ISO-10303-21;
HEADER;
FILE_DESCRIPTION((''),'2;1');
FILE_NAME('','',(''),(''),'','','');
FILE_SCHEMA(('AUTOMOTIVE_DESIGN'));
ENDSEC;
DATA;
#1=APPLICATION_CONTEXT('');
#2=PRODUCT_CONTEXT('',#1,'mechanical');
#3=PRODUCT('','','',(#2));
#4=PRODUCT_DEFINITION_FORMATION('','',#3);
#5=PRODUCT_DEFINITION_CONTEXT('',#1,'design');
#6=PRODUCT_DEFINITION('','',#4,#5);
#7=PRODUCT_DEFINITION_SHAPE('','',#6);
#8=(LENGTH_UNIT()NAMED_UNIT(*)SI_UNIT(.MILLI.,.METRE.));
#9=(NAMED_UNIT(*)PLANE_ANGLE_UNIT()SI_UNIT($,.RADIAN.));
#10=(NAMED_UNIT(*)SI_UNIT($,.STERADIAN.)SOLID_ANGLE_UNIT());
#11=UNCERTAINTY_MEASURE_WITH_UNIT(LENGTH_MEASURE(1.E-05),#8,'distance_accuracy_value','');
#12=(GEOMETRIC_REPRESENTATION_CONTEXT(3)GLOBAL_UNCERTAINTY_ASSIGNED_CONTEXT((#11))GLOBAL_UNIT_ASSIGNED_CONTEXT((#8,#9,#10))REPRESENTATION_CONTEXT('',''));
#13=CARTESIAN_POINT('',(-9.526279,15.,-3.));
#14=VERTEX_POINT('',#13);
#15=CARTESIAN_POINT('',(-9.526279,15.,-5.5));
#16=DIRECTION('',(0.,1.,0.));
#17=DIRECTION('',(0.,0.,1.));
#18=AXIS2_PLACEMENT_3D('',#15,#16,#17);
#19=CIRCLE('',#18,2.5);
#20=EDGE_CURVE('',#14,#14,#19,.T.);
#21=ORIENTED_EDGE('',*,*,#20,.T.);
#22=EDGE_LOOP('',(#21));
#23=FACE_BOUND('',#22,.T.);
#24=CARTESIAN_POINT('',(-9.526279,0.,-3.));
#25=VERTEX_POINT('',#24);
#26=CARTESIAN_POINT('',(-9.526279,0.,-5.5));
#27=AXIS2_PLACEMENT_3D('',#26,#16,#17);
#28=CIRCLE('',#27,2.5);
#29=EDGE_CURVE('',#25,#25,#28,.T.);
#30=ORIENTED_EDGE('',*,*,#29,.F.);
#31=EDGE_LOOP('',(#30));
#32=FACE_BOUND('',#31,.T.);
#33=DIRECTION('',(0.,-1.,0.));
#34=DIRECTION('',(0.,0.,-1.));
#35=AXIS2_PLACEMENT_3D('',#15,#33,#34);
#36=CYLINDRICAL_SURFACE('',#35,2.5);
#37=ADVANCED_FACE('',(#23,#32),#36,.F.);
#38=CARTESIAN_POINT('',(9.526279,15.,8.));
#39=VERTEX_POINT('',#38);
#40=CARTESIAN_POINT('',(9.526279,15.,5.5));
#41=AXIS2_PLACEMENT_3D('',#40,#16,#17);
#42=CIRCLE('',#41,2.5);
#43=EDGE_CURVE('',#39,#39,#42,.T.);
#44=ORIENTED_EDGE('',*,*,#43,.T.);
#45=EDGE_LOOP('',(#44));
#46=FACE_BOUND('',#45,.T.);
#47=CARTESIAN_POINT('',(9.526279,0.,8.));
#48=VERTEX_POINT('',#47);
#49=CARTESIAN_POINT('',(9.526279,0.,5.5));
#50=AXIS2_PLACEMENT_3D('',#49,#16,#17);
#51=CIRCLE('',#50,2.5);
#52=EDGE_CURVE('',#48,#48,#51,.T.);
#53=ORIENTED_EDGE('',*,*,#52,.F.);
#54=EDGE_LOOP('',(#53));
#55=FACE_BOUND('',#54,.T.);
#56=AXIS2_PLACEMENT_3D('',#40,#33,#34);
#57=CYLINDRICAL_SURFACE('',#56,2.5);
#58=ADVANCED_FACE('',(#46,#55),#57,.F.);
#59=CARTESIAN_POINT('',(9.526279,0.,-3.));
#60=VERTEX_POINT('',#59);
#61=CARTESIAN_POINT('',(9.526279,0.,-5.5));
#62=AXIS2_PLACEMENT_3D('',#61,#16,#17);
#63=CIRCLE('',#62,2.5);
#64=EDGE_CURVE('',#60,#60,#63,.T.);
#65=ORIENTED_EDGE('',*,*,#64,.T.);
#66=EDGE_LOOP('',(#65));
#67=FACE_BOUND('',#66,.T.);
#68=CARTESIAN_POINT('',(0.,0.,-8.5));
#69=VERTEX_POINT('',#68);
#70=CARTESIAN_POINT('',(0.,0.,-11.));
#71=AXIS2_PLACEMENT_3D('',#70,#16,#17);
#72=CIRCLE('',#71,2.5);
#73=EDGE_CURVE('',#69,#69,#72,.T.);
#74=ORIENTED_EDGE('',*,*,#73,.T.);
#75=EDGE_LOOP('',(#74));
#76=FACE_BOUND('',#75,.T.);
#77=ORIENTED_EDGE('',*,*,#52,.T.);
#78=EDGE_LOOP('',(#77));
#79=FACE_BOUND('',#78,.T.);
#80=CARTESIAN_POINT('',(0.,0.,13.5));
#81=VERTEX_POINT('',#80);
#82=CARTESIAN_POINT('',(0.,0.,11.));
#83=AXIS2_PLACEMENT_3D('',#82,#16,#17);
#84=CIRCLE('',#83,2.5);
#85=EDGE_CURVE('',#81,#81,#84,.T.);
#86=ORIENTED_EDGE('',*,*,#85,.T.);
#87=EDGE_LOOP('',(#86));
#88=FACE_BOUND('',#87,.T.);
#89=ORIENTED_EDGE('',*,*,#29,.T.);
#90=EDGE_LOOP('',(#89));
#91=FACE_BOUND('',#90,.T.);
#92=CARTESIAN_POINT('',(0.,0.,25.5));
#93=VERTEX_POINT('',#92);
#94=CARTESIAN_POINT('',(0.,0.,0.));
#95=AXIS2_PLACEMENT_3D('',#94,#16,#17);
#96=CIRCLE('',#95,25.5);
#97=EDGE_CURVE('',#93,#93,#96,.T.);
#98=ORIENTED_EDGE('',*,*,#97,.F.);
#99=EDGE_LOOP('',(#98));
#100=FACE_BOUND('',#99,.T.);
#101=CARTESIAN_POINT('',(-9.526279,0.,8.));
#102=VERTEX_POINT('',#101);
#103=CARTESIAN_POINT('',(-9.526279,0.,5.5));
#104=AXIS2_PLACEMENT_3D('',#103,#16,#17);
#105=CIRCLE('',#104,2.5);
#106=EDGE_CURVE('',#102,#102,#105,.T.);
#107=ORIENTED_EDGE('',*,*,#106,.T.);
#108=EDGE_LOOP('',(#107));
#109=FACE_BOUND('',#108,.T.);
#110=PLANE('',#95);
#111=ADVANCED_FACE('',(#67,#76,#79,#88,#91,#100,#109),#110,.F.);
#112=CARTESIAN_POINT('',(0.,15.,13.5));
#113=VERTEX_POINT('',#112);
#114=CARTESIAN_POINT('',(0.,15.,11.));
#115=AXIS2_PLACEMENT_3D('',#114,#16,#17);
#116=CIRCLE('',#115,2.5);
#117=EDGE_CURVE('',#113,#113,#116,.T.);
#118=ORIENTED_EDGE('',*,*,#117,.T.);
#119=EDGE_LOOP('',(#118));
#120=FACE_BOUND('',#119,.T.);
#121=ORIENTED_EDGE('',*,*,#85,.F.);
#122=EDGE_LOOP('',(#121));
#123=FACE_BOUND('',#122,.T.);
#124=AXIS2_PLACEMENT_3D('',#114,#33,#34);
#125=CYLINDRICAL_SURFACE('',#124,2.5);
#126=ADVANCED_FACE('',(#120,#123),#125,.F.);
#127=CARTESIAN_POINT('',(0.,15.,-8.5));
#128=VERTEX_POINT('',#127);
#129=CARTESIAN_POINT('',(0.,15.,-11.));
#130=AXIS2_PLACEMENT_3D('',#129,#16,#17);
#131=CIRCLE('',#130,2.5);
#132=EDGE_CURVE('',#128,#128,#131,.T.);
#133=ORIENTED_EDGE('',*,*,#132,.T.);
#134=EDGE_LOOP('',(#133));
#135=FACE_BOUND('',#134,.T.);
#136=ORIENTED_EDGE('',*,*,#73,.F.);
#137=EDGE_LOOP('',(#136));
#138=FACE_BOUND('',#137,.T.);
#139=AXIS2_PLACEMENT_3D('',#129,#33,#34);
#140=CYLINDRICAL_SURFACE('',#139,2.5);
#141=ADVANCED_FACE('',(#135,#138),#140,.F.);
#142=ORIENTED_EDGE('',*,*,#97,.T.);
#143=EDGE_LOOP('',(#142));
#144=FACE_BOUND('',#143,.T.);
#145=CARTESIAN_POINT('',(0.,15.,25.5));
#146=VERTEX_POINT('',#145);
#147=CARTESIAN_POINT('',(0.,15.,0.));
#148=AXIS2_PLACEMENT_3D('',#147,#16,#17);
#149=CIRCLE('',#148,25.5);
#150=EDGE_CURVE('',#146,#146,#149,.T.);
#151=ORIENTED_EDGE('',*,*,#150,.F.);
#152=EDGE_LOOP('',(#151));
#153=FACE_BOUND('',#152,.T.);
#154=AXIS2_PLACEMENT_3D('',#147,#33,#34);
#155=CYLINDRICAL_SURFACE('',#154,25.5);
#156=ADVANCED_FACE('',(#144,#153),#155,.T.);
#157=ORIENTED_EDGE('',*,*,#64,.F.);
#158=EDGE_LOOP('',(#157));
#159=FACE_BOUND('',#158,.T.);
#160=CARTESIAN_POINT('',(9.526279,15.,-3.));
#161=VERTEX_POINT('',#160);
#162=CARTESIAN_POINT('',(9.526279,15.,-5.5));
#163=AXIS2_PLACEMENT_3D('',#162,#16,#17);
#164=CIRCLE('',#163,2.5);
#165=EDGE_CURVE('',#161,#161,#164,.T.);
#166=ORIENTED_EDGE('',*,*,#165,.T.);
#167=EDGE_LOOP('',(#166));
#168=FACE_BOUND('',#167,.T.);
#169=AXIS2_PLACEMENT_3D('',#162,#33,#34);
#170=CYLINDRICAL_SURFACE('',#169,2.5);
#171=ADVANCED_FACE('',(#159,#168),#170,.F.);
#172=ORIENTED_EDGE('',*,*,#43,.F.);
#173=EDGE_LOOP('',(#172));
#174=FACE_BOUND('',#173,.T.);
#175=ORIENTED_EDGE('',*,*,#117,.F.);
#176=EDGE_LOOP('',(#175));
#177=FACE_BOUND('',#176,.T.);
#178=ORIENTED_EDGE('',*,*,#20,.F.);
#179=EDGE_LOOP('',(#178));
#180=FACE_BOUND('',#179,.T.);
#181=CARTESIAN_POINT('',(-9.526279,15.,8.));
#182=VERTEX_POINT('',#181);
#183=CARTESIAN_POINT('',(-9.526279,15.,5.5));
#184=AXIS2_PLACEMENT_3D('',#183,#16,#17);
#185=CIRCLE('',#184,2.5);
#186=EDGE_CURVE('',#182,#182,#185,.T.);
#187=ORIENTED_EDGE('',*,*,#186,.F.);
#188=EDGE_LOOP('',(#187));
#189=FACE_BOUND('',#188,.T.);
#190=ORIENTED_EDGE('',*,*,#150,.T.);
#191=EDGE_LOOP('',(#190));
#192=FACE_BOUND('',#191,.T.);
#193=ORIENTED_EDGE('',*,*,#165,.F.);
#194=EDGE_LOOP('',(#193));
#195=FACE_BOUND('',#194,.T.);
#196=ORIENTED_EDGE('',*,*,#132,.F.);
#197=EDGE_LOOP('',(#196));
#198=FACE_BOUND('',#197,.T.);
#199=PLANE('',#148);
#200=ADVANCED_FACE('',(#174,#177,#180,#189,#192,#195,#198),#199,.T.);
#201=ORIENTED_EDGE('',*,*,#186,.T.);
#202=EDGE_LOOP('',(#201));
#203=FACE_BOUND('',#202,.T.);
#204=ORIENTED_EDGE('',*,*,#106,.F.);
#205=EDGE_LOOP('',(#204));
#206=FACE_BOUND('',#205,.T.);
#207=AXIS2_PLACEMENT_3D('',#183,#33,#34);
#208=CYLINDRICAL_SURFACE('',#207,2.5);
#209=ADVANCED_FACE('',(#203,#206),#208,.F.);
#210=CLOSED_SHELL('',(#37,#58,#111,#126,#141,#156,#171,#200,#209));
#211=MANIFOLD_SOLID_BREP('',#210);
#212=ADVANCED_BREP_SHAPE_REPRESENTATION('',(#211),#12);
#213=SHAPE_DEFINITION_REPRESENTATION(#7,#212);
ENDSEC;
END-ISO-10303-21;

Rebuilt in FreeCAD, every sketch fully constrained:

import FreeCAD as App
import Part
import Sketcher
from FreeCAD import Vector
Q = App.Units.Quantity

doc = App.newDocument("Part")
body = doc.addObject("PartDesign::Body", "Body")

# Sketch on XZ plane
sketch1 = body.newObject("Sketcher::SketchObject", "Sketch")
sketch1.AttachmentSupport = (doc.getObject("XZ_Plane"), [""])
sketch1.MapMode = "FlatFace"
sketch1.addGeometry(Part.Circle(Vector(0, 0, 0), Vector(0, 0, 1), 25.5), False)
sketch1.addGeometry(Part.Circle(Vector(-9.5, -5.5, 0), Vector(0, 0, 1), 2.5), False)
sketch1.addGeometry(Part.Circle(Vector(0, -11, 0), Vector(0, 0, 1), 2.5), False)
sketch1.addGeometry(Part.Circle(Vector(-9.5, 5.5, 0), Vector(0, 0, 1), 2.5), False)
sketch1.addGeometry(Part.Circle(Vector(9.5, -5.5, 0), Vector(0, 0, 1), 2.5), False)
sketch1.addGeometry(Part.Circle(Vector(0, 11, 0), Vector(0, 0, 1), 2.5), False)
sketch1.addGeometry(Part.Circle(Vector(9.5, 5.5, 0), Vector(0, 0, 1), 2.5), False)
sketch1.addConstraint(Sketcher.Constraint("Coincident", 0, 3, -1, 1))
sketch1.addConstraint(Sketcher.Constraint("Equal", 1, 2))
sketch1.addConstraint(Sketcher.Constraint("Equal", 2, 3))
sketch1.addConstraint(Sketcher.Constraint("Equal", 3, 4))
sketch1.addConstraint(Sketcher.Constraint("Equal", 4, 5))
sketch1.addConstraint(Sketcher.Constraint("Equal", 5, 6))
sketch1.addConstraint(Sketcher.Constraint("Symmetric", 3, 3, 4, 3, -1, 1))
sketch1.addConstraint(Sketcher.Constraint("Symmetric", 2, 3, 5, 3, -1, 1))
sketch1.addConstraint(Sketcher.Constraint("Symmetric", 1, 3, 6, 3, -1, 1))
sketch1.addConstraint(Sketcher.Constraint("Symmetric", 1, 3, 4, 3, -2))
sketch1.addConstraint(Sketcher.Constraint("PointOnObject", 2, 3, -2))
sketch1.addConstraint(Sketcher.Constraint("Diameter", 0, Q("51 mm")))
sketch1.addConstraint(Sketcher.Constraint("Diameter", 1, Q("5 mm")))
sketch1.addConstraint(Sketcher.Constraint("DistanceY", 2, 3, -1, 1, Q("11 mm")))
sketch1.addConstraint(Sketcher.Constraint("DistanceY", 1, 3, 3, 3, Q("11 mm")))
sketch1.addConstraint(Sketcher.Constraint("DistanceX", 1, 3, -1, 1, Q("9.526279 mm")))
pad1 = body.newObject("PartDesign::Pad", "Pad")
pad1.Profile = sketch1
pad1.Length = 15
pad1.Reversed = True

doc.recompute()
